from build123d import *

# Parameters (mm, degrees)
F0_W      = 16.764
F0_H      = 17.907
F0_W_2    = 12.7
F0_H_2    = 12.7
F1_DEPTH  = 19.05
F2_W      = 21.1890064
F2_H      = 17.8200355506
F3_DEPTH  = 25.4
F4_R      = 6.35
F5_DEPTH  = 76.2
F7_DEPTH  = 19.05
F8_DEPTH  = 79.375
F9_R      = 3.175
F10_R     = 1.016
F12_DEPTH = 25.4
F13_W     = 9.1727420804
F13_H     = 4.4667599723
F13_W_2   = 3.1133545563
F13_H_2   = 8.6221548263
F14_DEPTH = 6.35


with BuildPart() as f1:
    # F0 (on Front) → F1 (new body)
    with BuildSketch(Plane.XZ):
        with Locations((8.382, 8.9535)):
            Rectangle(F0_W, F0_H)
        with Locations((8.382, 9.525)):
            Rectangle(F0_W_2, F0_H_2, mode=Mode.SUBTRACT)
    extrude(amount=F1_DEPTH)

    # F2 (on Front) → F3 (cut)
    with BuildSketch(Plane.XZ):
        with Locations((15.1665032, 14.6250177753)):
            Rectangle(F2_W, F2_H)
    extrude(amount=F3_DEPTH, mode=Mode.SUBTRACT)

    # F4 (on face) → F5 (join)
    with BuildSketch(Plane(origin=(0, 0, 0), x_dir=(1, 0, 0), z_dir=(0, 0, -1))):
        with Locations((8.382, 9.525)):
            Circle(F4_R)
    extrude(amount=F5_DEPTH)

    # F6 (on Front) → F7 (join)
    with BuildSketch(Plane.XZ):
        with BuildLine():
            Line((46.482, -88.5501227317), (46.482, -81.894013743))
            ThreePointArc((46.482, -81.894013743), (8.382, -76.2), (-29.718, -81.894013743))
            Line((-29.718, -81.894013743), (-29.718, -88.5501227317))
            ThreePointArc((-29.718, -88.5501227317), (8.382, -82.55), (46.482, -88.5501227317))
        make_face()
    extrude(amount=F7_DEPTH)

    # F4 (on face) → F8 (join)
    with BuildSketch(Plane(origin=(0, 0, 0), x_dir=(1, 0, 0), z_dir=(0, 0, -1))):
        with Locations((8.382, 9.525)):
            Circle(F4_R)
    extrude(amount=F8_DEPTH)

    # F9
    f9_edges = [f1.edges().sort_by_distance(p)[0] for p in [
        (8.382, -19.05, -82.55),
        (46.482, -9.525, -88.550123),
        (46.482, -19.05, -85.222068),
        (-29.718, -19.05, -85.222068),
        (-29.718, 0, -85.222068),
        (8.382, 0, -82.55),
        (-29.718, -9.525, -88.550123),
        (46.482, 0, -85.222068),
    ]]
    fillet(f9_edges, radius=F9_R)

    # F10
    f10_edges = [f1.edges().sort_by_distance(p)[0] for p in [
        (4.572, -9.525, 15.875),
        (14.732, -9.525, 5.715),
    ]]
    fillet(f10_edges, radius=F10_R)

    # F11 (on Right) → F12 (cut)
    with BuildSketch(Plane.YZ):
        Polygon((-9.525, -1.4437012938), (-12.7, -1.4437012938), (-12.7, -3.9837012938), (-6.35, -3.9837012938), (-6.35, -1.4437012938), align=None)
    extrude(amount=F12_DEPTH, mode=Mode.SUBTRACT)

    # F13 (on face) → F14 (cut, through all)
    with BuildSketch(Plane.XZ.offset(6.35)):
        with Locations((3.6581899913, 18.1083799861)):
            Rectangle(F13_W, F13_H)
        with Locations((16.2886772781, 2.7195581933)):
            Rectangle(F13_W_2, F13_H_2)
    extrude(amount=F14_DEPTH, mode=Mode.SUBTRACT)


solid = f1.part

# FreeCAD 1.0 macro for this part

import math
import FreeCAD as App
import Part
import Sketcher

V = App.Vector
Q = App.Units.Quantity


def edges_at(feature, points):
    """Names of the edges that pass closest to the given points."""
    edges = feature.Shape.Edges
    near = lambda p: min(range(len(edges)), key=lambda i: edges[i].distToShape(Part.Vertex(*p))[0])
    return sorted({f"Edge{near(p) + 1}" for p in points})

doc = App.newDocument("Part")
body = doc.addObject("PartDesign::Body", "Body")
body.AllowCompound = True

# Sketch on XZ plane
sketch1 = doc.addObject("Sketcher::SketchObject", "Sketch")
body.addObject(sketch1)
sketch1.AttachmentSupport = (doc.XZ_Plane, [""])
sketch1.MapMode = "FlatFace"
sketch1.addGeometry([
    Part.LineSegment(V(0, 18, 0), V(0, 0, 0)),  # 0
    Part.LineSegment(V(0, 0, 0), V(17, 0, 0)),  # 1
    Part.LineSegment(V(17, 0, 0), V(17, 18, 0)),  # 2
    Part.LineSegment(V(17, 18, 0), V(0, 18, 0)),  # 3
    Part.LineSegment(V(15, 3, 0), V(2, 3, 0)),  # 4
    Part.LineSegment(V(2, 3, 0), V(2, 16, 0)),  # 5
    Part.LineSegment(V(2, 16, 0), V(15, 16, 0)),  # 6
    Part.LineSegment(V(15, 16, 0), V(15, 3, 0)),  # 7
], False)
sketch1.addConstraint([
    Sketcher.Constraint("Coincident", 0, 2, 1, 1),
    Sketcher.Constraint("Coincident", 1, 2, 2, 1),
    Sketcher.Constraint("Coincident", 2, 2, 3, 1),
    Sketcher.Constraint("Coincident", 3, 2, 0, 1),
    Sketcher.Constraint("Coincident", 4, 2, 5, 1),
    Sketcher.Constraint("Coincident", 5, 2, 6, 1),
    Sketcher.Constraint("Coincident", 6, 2, 7, 1),
    Sketcher.Constraint("Coincident", 7, 2, 4, 1),
    Sketcher.Constraint("Vertical", 0),
    Sketcher.Constraint("Horizontal", 1),
    Sketcher.Constraint("Vertical", 2),
    Sketcher.Constraint("Horizontal", 3),
    Sketcher.Constraint("Horizontal", 4),
    Sketcher.Constraint("Vertical", 5),
    Sketcher.Constraint("Horizontal", 6),
    Sketcher.Constraint("Vertical", 7),
    Sketcher.Constraint("Coincident", 0, 2, -1, 1),
    Sketcher.Constraint("Equal", 6, 5),
    Sketcher.Constraint("DistanceX", 4, 2, 4, 1, Q("0.5 in")),
    Sketcher.Constraint("DistanceX", 1, 1, 1, 2, Q("0.66 in")),
    Sketcher.Constraint("DistanceY", 0, 2, 0, 1, Q("0.705 in")),
    Sketcher.Constraint("DistanceX", -1, 1, 4, 2, Q("0.08 in")),
    Sketcher.Constraint("DistanceY", 4, 2, 3, 2, Q("0.58 in")),
])
pad1 = doc.addObject("PartDesign::Pad", "Pad")
body.addObject(pad1)
pad1.Profile = sketch1
pad1.Length = Q("0.75 in")

# Sketch on XZ plane
sketch2 = doc.addObject("Sketcher::SketchObject", "Sketch001")
body.addObject(sketch2)
sketch2.AttachmentSupport = (doc.XZ_Plane, [""])
sketch2.MapMode = "FlatFace"
sketch2.addGeometry([
    Part.LineSegment(V(5, 24, 0), V(5, 6, 0)),
    Part.LineSegment(V(5, 6, 0), V(26, 6, 0)),
    Part.LineSegment(V(26, 6, 0), V(26, 24, 0)),
    Part.LineSegment(V(26, 24, 0), V(5, 24, 0)),
], False)
sketch2.addConstraint([
    Sketcher.Constraint("Coincident", 0, 2, 1, 1),
    Sketcher.Constraint("Coincident", 1, 2, 2, 1),
    Sketcher.Constraint("Coincident", 2, 2, 3, 1),
    Sketcher.Constraint("Coincident", 3, 2, 0, 1),
    Sketcher.Constraint("Vertical", 0),
    Sketcher.Constraint("Horizontal", 1),
    Sketcher.Constraint("Vertical", 2),
    Sketcher.Constraint("Horizontal", 3),
    Sketcher.Constraint("DistanceX", -1, 1, 0, 2, Q("0.18 in")),
    Sketcher.Constraint("DistanceY", -1, 1, 0, 2, Q("0.225 in")),
    Sketcher.Constraint("DistanceX", 1, 1, 1, 2, Q("21.189006 mm")),
    Sketcher.Constraint("DistanceY", 0, 2, 0, 1, Q("17.820036 mm")),
])
pocket1 = doc.addObject("PartDesign::Pocket", "Pocket")
body.addObject(pocket1)
pocket1.Profile = sketch2
pocket1.Length = Q("1 in")
pocket1.Reversed = True

# Sketch on XY plane
sketch3 = doc.addObject("Sketcher::SketchObject", "Sketch002")
body.addObject(sketch3)
sketch3.AttachmentSupport = (doc.XY_Plane, [""])
sketch3.MapMode = "FlatFace"
sketch3.addGeometry(Part.Circle(V(8, -10, 0), V(0, 0, 1), 6), False)
sketch3.addConstraint([
    Sketcher.Constraint("Diameter", 0, Q("0.5 in")),
    Sketcher.Constraint("DistanceX", -1, 1, 0, 3, Q("0.33 in")),
    Sketcher.Constraint("DistanceY", 0, 3, -1, 1, Q("0.375 in")),
])
pad2 = doc.addObject("PartDesign::Pad", "Pad001")
body.addObject(pad2)
pad2.Profile = sketch3
pad2.Length = Q("3 in")
pad2.Reversed = True

# Sketch on XZ plane
sketch4 = doc.addObject("Sketcher::SketchObject", "Sketch003")
body.addObject(sketch4)
sketch4.AttachmentSupport = (doc.XZ_Plane, [""])
sketch4.MapMode = "FlatFace"
sketch4.addGeometry([
    Part.LineSegment(V(46, -89, 0), V(46, -82, 0)),
    Part.ArcOfCircle(Part.Circle(V(8, -207, 0), V(0, 0, 1), 130), math.radians(73), math.radians(107)),
    Part.LineSegment(V(-30, -82, 0), V(-30, -89, 0)),
    Part.ArcOfCircle(Part.Circle(V(8, -207, 0), V(0, 0, 1), 124), math.radians(72), math.radians(108)),
], False)
sketch4.addConstraint([
    Sketcher.Constraint("Coincident", 0, 2, 1, 1),
    Sketcher.Constraint("Coincident", 1, 2, 2, 1),
    Sketcher.Constraint("Coincident", 2, 2, 3, 2),
    Sketcher.Constraint("Coincident", 3, 1, 0, 1),
    Sketcher.Constraint("Vertical", 0),
    Sketcher.Constraint("Vertical", 2),
    Sketcher.Constraint("Coincident", 3, 3, 1, 3),
    Sketcher.Constraint("Horizontal", 0, 2, 1, 2),
    Sketcher.Constraint("DistanceX", 1, 2, 0, 2, Q("3 in")),
    Sketcher.Constraint("DistanceX", -1, 1, 1, 3, Q("0.33 in")),
    Sketcher.Constraint("Radius", 1, Q("130.315087 mm")),
    Sketcher.Constraint("Radius", 3, Q("123.965087 mm")),
    Sketcher.Constraint("DistanceY", 1, 3, -1, 1, Q("206.515087 mm")),
])
pad3 = doc.addObject("PartDesign::Pad", "Pad002")
body.addObject(pad3)
pad3.Profile = sketch4
pad3.Length = Q("0.75 in")

# Sketch on XY plane
sketch5 = doc.addObject("Sketcher::SketchObject", "Sketch004")
body.addObject(sketch5)
sketch5.AttachmentSupport = (doc.XY_Plane, [""])
sketch5.MapMode = "FlatFace"
sketch5.addGeometry(Part.Circle(V(8, -10, 0), V(0, 0, 1), 6), False)
sketch5.addConstraint([
    Sketcher.Constraint("Diameter", 0, Q("0.5 in")),
    Sketcher.Constraint("DistanceX", -1, 1, 0, 3, Q("0.33 in")),
    Sketcher.Constraint("DistanceY", 0, 3, -1, 1, Q("0.375 in")),
])
pad4 = doc.addObject("PartDesign::Pad", "Pad003")
body.addObject(pad4)
pad4.Profile = sketch5
pad4.Length = Q("3.125 in")
pad4.Reversed = True
doc.recompute()

fillet = doc.addObject("PartDesign::Fillet", "Fillet")
body.addObject(fillet)
fillet.Base = (pad4, edges_at(pad4, [
    (8.382, -19.05, -82.55),
    (46.482, -9.525, -88.55),
    (46.482, -19.05, -85.222),
    (-29.718, -19.05, -85.222),
    (-29.718, 0, -85.222),
    (8.382, 0, -82.55),
    (-29.718, -9.525, -88.55),
    (46.482, 0, -85.222),
]))
fillet.Radius = Q("0.125 in")
doc.recompute()

fillet2 = doc.addObject("PartDesign::Fillet", "Fillet001")
body.addObject(fillet2)
fillet2.Base = (fillet, edges_at(fillet, [(4.572, -9.525, 15.875), (14.732, -9.525, 5.715)]))
fillet2.Radius = Q("0.04 in")

# Sketch on YZ plane
sketch6 = doc.addObject("Sketcher::SketchObject", "Sketch005")
body.addObject(sketch6)
sketch6.AttachmentSupport = (doc.YZ_Plane, [""])
sketch6.MapMode = "FlatFace"
sketch6.addGeometry([
    Part.LineSegment(V(-12.7, -1.4, 0), V(-12.7, -4, 0)),
    Part.LineSegment(V(-12.7, -4, 0), V(-6.3, -4, 0)),
    Part.LineSegment(V(-6.3, -4, 0), V(-6.3, -1.4, 0)),
    Part.LineSegment(V(-6.3, -1.4, 0), V(-12.7, -1.4, 0)),
], False)
sketch6.addConstraint([
    Sketcher.Constraint("Coincident", 0, 2, 1, 1),
    Sketcher.Constraint("Coincident", 1, 2, 2, 1),
    Sketcher.Constraint("Coincident", 2, 2, 3, 1),
    Sketcher.Constraint("Coincident", 3, 2, 0, 1),
    Sketcher.Constraint("Vertical", 0),
    Sketcher.Constraint("Horizontal", 1),
    Sketcher.Constraint("Vertical", 2),
    Sketcher.Constraint("Horizontal", 3),
    Sketcher.Constraint("DistanceY", 0, 2, 0, 1, Q("0.1 in")),
    Sketcher.Constraint("DistanceX", 1, 1, 1, 2, Q("0.25 in")),
    Sketcher.Constraint("DistanceX", 0, 2, -1, 1, Q("0.5 in")),
    Sketcher.Constraint("DistanceY", 0, 2, -1, 1, Q("3.983701 mm")),
])
pocket2 = doc.addObject("PartDesign::Pocket", "Pocket001")
body.addObject(pocket2)
pocket2.Profile = sketch6
pocket2.Length = Q("1 in")
pocket2.Reversed = True

# Sketch on XZ plane
sketch7 = doc.addObject("Sketcher::SketchObject", "Sketch006")
body.addObject(sketch7)
sketch7.AttachmentSupport = (doc.XZ_Plane, [""])
sketch7.MapMode = "FlatFace"
sketch7.AttachmentOffset = App.Placement(V(0, 0, 0.25 * 25.4), App.Rotation())
sketch7.addGeometry([
    Part.LineSegment(V(-0.9, 20.3, 0), V(-0.9, 15.9, 0)),  # 0
    Part.LineSegment(V(-0.9, 15.9, 0), V(8.2, 15.9, 0)),  # 1
    Part.LineSegment(V(8.2, 15.9, 0), V(8.2, 20.3, 0)),  # 2
    Part.LineSegment(V(8.2, 20.3, 0), V(-0.9, 20.3, 0)),  # 3
    Part.LineSegment(V(14.7, 7, 0), V(14.7, -1.6, 0)),  # 4
    Part.LineSegment(V(14.7, -1.6, 0), V(17.8, -1.6, 0)),  # 5
    Part.LineSegment(V(17.8, -1.6, 0), V(17.8, 7, 0)),  # 6
    Part.LineSegment(V(17.8, 7, 0), V(14.7, 7, 0)),  # 7
], False)
sketch7.addConstraint([
    Sketcher.Constraint("Coincident", 0, 2, 1, 1),
    Sketcher.Constraint("Coincident", 1, 2, 2, 1),
    Sketcher.Constraint("Coincident", 2, 2, 3, 1),
    Sketcher.Constraint("Coincident", 3, 2, 0, 1),
    Sketcher.Constraint("Coincident", 4, 2, 5, 1),
    Sketcher.Constraint("Coincident", 5, 2, 6, 1),
    Sketcher.Constraint("Coincident", 6, 2, 7, 1),
    Sketcher.Constraint("Coincident", 7, 2, 4, 1),
    Sketcher.Constraint("Vertical", 0),
    Sketcher.Constraint("Horizontal", 1),
    Sketcher.Constraint("Vertical", 2),
    Sketcher.Constraint("Horizontal", 3),
    Sketcher.Constraint("Vertical", 4),
    Sketcher.Constraint("Horizontal", 5),
    Sketcher.Constraint("Vertical", 6),
    Sketcher.Constraint("Horizontal", 7),
    Sketcher.Constraint("DistanceX", -1, 1, 4, 2, Q("0.58 in")),
    Sketcher.Constraint("DistanceY", -1, 1, 0, 2, Q("0.625 in")),
    Sketcher.Constraint("DistanceY", 0, 2, 0, 1, Q("4.46676 mm")),
    Sketcher.Constraint("DistanceX", 1, 1, 1, 2, Q("9.172742 mm")),
    Sketcher.Constraint("DistanceX", 5, 1, 5, 2, Q("3.113355 mm")),
    Sketcher.Constraint("DistanceY", 4, 2, 4, 1, Q("8.622155 mm")),
    Sketcher.Constraint("DistanceX", 0, 2, -1, 1, Q("0.928181 mm")),
    Sketcher.Constraint("DistanceY", 4, 2, -1, 1, Q("1.591519 mm")),
])
pocket3 = doc.addObject("PartDesign::Pocket", "Pocket002")
body.addObject(pocket3)
pocket3.Profile = sketch7
pocket3.Length = Q("0.25 in")
pocket3.Reversed = True

doc.recompute()
